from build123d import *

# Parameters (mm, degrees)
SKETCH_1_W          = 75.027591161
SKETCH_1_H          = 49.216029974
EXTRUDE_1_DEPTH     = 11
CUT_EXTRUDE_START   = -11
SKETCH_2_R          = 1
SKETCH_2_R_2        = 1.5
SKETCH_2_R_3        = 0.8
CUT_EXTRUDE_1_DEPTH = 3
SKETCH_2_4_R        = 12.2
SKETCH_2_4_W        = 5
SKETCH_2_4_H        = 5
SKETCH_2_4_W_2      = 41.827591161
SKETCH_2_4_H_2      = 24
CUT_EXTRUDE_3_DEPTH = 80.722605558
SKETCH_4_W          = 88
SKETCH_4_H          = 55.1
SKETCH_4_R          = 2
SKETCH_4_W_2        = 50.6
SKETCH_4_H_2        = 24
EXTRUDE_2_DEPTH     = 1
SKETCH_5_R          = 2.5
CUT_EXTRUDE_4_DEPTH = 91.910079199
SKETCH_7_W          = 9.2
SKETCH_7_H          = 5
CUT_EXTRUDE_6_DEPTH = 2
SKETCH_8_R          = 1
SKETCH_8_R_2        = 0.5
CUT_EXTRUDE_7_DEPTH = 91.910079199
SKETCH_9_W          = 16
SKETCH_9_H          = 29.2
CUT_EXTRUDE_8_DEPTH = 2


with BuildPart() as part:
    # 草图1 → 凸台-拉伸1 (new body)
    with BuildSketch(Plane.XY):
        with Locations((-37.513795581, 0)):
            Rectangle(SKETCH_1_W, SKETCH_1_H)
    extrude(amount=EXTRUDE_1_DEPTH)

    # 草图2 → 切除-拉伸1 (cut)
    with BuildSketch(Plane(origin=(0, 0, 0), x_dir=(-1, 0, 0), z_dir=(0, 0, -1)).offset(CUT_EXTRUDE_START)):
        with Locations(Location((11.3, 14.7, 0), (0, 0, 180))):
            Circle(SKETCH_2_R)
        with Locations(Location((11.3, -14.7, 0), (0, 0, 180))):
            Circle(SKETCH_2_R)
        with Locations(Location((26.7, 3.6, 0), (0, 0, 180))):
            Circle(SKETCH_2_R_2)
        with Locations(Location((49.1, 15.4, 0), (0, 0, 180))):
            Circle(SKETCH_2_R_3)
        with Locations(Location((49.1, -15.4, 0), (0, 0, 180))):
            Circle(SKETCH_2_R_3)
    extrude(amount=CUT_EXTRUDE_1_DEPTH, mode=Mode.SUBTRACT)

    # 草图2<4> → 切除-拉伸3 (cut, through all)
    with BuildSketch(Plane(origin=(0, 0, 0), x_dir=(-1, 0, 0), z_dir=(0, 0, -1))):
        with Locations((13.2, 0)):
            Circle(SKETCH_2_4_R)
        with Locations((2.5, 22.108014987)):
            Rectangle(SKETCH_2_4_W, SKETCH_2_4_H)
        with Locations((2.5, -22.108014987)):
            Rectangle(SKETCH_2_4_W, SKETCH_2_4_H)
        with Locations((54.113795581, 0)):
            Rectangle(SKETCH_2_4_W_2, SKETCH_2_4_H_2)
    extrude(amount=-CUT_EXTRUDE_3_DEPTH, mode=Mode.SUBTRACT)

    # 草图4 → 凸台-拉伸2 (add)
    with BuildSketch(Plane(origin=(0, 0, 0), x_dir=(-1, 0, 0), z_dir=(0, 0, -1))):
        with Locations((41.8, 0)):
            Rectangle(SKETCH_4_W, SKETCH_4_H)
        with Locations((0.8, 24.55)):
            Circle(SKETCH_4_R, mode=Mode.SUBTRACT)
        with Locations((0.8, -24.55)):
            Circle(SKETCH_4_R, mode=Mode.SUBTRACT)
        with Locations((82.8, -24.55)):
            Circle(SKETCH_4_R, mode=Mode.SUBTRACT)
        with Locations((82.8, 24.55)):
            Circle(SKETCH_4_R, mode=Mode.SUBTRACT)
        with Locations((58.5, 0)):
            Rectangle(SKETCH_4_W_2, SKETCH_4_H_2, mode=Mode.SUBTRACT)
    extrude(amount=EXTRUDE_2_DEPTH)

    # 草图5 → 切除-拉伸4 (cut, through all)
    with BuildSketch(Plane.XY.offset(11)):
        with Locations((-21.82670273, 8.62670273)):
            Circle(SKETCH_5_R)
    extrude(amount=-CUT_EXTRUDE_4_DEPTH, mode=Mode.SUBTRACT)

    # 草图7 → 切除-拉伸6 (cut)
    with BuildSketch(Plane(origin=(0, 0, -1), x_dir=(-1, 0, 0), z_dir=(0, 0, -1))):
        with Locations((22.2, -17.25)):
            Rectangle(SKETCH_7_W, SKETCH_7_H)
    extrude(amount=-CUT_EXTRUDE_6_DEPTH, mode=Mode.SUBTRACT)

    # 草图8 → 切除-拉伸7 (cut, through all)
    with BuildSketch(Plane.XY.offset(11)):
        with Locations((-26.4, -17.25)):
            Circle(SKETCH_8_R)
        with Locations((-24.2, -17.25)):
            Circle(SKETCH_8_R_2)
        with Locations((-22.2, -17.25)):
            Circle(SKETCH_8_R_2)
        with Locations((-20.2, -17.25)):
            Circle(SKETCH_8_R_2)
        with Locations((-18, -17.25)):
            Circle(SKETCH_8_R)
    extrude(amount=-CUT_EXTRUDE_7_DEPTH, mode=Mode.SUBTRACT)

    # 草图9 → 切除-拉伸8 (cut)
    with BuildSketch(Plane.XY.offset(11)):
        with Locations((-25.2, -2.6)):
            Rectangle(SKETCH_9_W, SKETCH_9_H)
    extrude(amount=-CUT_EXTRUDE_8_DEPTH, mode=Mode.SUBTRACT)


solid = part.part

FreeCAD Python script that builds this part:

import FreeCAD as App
import Part
import Sketcher

V = App.Vector


def add_polygon(sketch, points):
    """Adds a closed chain of lines whose ends are joined by coincident constraints."""
    first, n = sketch.GeometryCount, len(points)
    for a, b in zip(points, points[1:] + points[:1]):
        sketch.addGeometry(Part.LineSegment(App.Vector(*a, 0), App.Vector(*b, 0)), False)
    for i in range(n):
        sketch.addConstraint(Sketcher.Constraint("Coincident", first + i, 2, first + (i + 1) % n, 1))

doc = App.newDocument("Part")
body = doc.addObject("PartDesign::Body", "Body")

# Sketch on XY plane
sketch1 = body.newObject("Sketcher::SketchObject", "Sketch")
sketch1.AttachmentSupport = (doc.getObject("XY_Plane"), [""])
sketch1.MapMode = "FlatFace"
add_polygon(sketch1, [(-75, 25), (-75, -25), (0, -25), (0, 25)])  # lines 0-3
sketch1.addConstraint(Sketcher.Constraint("Vertical", 0))
sketch1.addConstraint(Sketcher.Constraint("Horizontal", 1))
sketch1.addConstraint(Sketcher.Constraint("Vertical", 2))
sketch1.addConstraint(Sketcher.Constraint("Horizontal", 3))
sketch1.addConstraint(Sketcher.Constraint("Symmetric", 1, 2, 2, 2, -1, 1))
sketch1.addConstraint(Sketcher.Constraint("DistanceX", 1, 1, 1, 2, 75.027591))
sketch1.addConstraint(Sketcher.Constraint("DistanceY", 0, 2, 0, 1, 49.21603))
pad1 = body.newObject("PartDesign::Pad", "Pad")
pad1.Profile = sketch1
pad1.Length = 11

# Sketch on XY plane
sketch2 = body.newObject("Sketcher::SketchObject", "Sketch001")
sketch2.AttachmentSupport = (doc.getObject("XY_Plane"), [""])
sketch2.MapMode = "FlatFace"
sketch2.AttachmentOffset = App.Placement(V(0, 0, 11), App.Rotation())
sketch2.addGeometry(Part.Circle(V(-11.3, 14.7, 0), V(0, 0, 1), 1), False)
sketch2.addGeometry(Part.Circle(V(-11.3, -14.7, 0), V(0, 0, 1), 1), False)
sketch2.addGeometry(Part.Circle(V(-26.7, 3.6, 0), V(0, 0, 1), 1.5), False)
sketch2.addGeometry(Part.Circle(V(-49.1, 15.4, 0), V(0, 0, 1), 0.8), False)
sketch2.addGeometry(Part.Circle(V(-49.1, -15.4, 0), V(0, 0, 1), 0.8), False)
sketch2.addConstraint(Sketcher.Constraint("Equal", 0, 1))
sketch2.addConstraint(Sketcher.Constraint("Equal", 3, 4))
sketch2.addConstraint(Sketcher.Constraint("Symmetric", 0, 3, 1, 3, -1))
sketch2.addConstraint(Sketcher.Constraint("Symmetric", 3, 3, 4, 3, -1))
sketch2.addConstraint(Sketcher.Constraint("Diameter", 0, 2.0))
sketch2.addConstraint(Sketcher.Constraint("Diameter", 2, 3.0))
sketch2.addConstraint(Sketcher.Constraint("Diameter", 3, 1.6))
sketch2.addConstraint(Sketcher.Constraint("DistanceY", 4, 3, 2, 3, 19.0))
sketch2.addConstraint(Sketcher.Constraint("DistanceX", 0, 3, -1, 1, 11.3))
sketch2.addConstraint(Sketcher.Constraint("DistanceY", -1, 1, 0, 3, 14.7))
sketch2.addConstraint(Sketcher.Constraint("DistanceX", 2, 3, -1, 1, 26.7))
sketch2.addConstraint(Sketcher.Constraint("DistanceY", -1, 1, 2, 3, 3.6))
sketch2.addConstraint(Sketcher.Constraint("DistanceX", 3, 3, -1, 1, 49.1))
pocket1 = body.newObject("PartDesign::Pocket", "Pocket")
pocket1.Profile = sketch2
pocket1.Length = 3

# Sketch on XY plane
sketch3 = body.newObject("Sketcher::SketchObject", "Sketch002")
sketch3.AttachmentSupport = (doc.getObject("XY_Plane"), [""])
sketch3.MapMode = "FlatFace"
sketch3.addGeometry(Part.Circle(V(-13, 0, 0), V(0, 0, 1), 12), False)  # 0
add_polygon(sketch3, [(0, 25), (0, 20), (-5, 20), (-5, 25)])  # lines 1-4
add_polygon(sketch3, [(0, -20), (0, -25), (-5, -25), (-5, -20)])  # lines 5-8
add_polygon(sketch3, [(-33, 12), (-33, -12), (-75, -12), (-75, 12)])  # lines 9-12
sketch3.addConstraint(Sketcher.Constraint("Vertical", 1))
sketch3.addConstraint(Sketcher.Constraint("Horizontal", 2))
sketch3.addConstraint(Sketcher.Constraint("Vertical", 3))
sketch3.addConstraint(Sketcher.Constraint("Horizontal", 4))
sketch3.addConstraint(Sketcher.Constraint("Vertical", 5))
sketch3.addConstraint(Sketcher.Constraint("Horizontal", 6))
sketch3.addConstraint(Sketcher.Constraint("Vertical", 7))
sketch3.addConstraint(Sketcher.Constraint("Horizontal", 8))
sketch3.addConstraint(Sketcher.Constraint("Vertical", 9))
sketch3.addConstraint(Sketcher.Constraint("Horizontal", 10))
sketch3.addConstraint(Sketcher.Constraint("Vertical", 11))
sketch3.addConstraint(Sketcher.Constraint("Horizontal", 12))
sketch3.addConstraint(Sketcher.Constraint("Symmetric", 4, 2, 5, 2, -1, 1))
sketch3.addConstraint(Sketcher.Constraint("Symmetric", 2, 2, 7, 2, -1))
sketch3.addConstraint(Sketcher.Constraint("PointOnObject", 0, 3, -1))
sketch3.addConstraint(Sketcher.Constraint("PointOnObject", 1, 2, -2))
sketch3.addConstraint(Sketcher.Constraint("Equal", 8, 1))
sketch3.addConstraint(Sketcher.Constraint("Diameter", 0, 24.4))
sketch3.addConstraint(Sketcher.Constraint("DistanceX", 2, 2, 2, 1, 5.0))
sketch3.addConstraint(Sketcher.Constraint("DistanceY", 9, 2, 9, 1, 24.0))
sketch3.addConstraint(Sketcher.Constraint("DistanceY", 9, 2, -1, 1, 12.0))
sketch3.addConstraint(Sketcher.Constraint("DistanceX", 9, 2, 0, 3, 20.0))
sketch3.addConstraint(Sketcher.Constraint("DistanceX", 0, 3, -1, 1, 13.2))
sketch3.addConstraint(Sketcher.Constraint("DistanceX", 10, 2, 10, 1, 41.827591))
sketch3.addConstraint(Sketcher.Constraint("DistanceY", 5, 2, 1, 2, 44.21603))
pocket2 = body.newObject("PartDesign::Pocket", "Pocket001")
pocket2.Profile = sketch3
pocket2.Type = "ThroughAll"
pocket2.Reversed = True

# Sketch on XY plane
sketch4 = body.newObject("Sketcher::SketchObject", "Sketch003")
sketch4.AttachmentSupport = (doc.getObject("XY_Plane"), [""])
sketch4.MapMode = "FlatFace"
add_polygon(sketch4, [(2.2, 27.6), (2.2, -27.6), (-85.8, -27.6), (-85.8, 27.6)])  # lines 0-3
sketch4.addGeometry(Part.Circle(V(-0.8, -24.6, 0), V(0, 0, 1), 2), False)  # 4
sketch4.addGeometry(Part.Circle(V(-82.8, -24.6, 0), V(0, 0, 1), 2), False)  # 5
sketch4.addGeometry(Part.Circle(V(-0.8, 24.6, 0), V(0, 0, 1), 2), False)  # 6
add_polygon(sketch4, [(-83.8, -12), (-33.2, -12), (-33.2, 12), (-83.8, 12)])  # lines 7-10
sketch4.addGeometry(Part.Circle(V(-82.8, 24.6, 0), V(0, 0, 1), 2), False)  # 11
sketch4.addConstraint(Sketcher.Constraint("Vertical", 0))
sketch4.addConstraint(Sketcher.Constraint("Horizontal", 1))
sketch4.addConstraint(Sketcher.Constraint("Vertical", 2))
sketch4.addConstraint(Sketcher.Constraint("Horizontal", 3))
sketch4.addConstraint(Sketcher.Constraint("Horizontal", 7))
sketch4.addConstraint(Sketcher.Constraint("Vertical", 8))
sketch4.addConstraint(Sketcher.Constraint("Horizontal", 9))
sketch4.addConstraint(Sketcher.Constraint("Vertical", 10))
sketch4.addConstraint(Sketcher.Constraint("Equal", 4, 5))
sketch4.addConstraint(Sketcher.Constraint("Equal", 5, 6))
sketch4.addConstraint(Sketcher.Constraint("Equal", 6, 11))
sketch4.addConstraint(Sketcher.Constraint("Symmetric", 4, 3, 6, 3, -1))
sketch4.addConstraint(Sketcher.Constraint("Symmetric", 5, 3, 11, 3, -1))
sketch4.addConstraint(Sketcher.Constraint("Horizontal", 4, 3, 5, 3))
sketch4.addConstraint(Sketcher.Constraint("Diameter", 4, 4.0))
sketch4.addConstraint(Sketcher.Constraint("DistanceX", 1, 2, 1, 1, 88.0))
sketch4.addConstraint(Sketcher.Constraint("DistanceY", 8, 1, 8, 2, 24.0))
sketch4.addConstraint(Sketcher.Constraint("DistanceX", 7, 1, 7, 2, 50.6))
sketch4.addConstraint(Sketcher.Constraint("DistanceY", 0, 2, 0, 1, 55.1))
sketch4.addConstraint(Sketcher.Constraint("DistanceY", 7, 2, -1, 1, 12.0))
sketch4.addConstraint(Sketcher.Constraint("DistanceX", 5, 3, 4, 3, 82.0))
sketch4.addConstraint(Sketcher.Constraint("DistanceX", 4, 3, 0, 2, 3.0))
sketch4.addConstraint(Sketcher.Constraint("DistanceY", 0, 2, 4, 3, 3.0))
sketch4.addConstraint(Sketcher.Constraint("DistanceY", 11, 3, 2, 2, 3.0))
sketch4.addConstraint(Sketcher.Constraint("DistanceX", 9, 2, 11, 3, 1.0))
sketch4.addConstraint(Sketcher.Constraint("DistanceX", 4, 3, -1, 1, 0.8))
pad2 = body.newObject("PartDesign::Pad", "Pad001")
pad2.Profile = sketch4
pad2.Length = 1
pad2.Reversed = True

# Sketch on XY plane
sketch5 = body.newObject("Sketcher::SketchObject", "Sketch004")
sketch5.AttachmentSupport = (doc.getObject("XY_Plane"), [""])
sketch5.MapMode = "FlatFace"
sketch5.AttachmentOffset = App.Placement(V(0, 0, 11), App.Rotation())
sketch5.addGeometry(Part.Circle(V(-21.8, 8.6, 0), V(0, 0, 1), 2.5), False)
sketch5.addConstraint(Sketcher.Constraint("Diameter", 0, 5.0))
sketch5.addConstraint(Sketcher.Constraint("DistanceX", 0, 3, -1, 1, 21.826703))
sketch5.addConstraint(Sketcher.Constraint("DistanceY", -1, 1, 0, 3, 8.626703))
pocket3 = body.newObject("PartDesign::Pocket", "Pocket002")
pocket3.Profile = sketch5
pocket3.Type = "ThroughAll"

# Sketch on XY plane
sketch6 = body.newObject("Sketcher::SketchObject", "Sketch005")
sketch6.AttachmentSupport = (doc.getObject("XY_Plane"), [""])
sketch6.MapMode = "FlatFace"
sketch6.AttachmentOffset = App.Placement(V(0, 0, -1), App.Rotation())
add_polygon(sketch6, [(-18, -15), (-18, -20), (-27, -20), (-27, -15)])  # lines 0-3
sketch6.addConstraint(Sketcher.Constraint("Vertical", 0))
sketch6.addConstraint(Sketcher.Constraint("Horizontal", 1))
sketch6.addConstraint(Sketcher.Constraint("Vertical", 2))
sketch6.addConstraint(Sketcher.Constraint("Horizontal", 3))
sketch6.addConstraint(Sketcher.Constraint("DistanceY", 0, 2, 0, 1, 5.0))
sketch6.addConstraint(Sketcher.Constraint("DistanceX", 1, 2, 1, 1, 9.2))
sketch6.addConstraint(Sketcher.Constraint("DistanceX", 0, 2, -1, 1, 17.6))
sketch6.addConstraint(Sketcher.Constraint("DistanceY", 0, 2, -1, 1, 19.75))
pocket4 = body.newObject("PartDesign::Pocket", "Pocket003")
pocket4.Profile = sketch6
pocket4.Length = 2
pocket4.Reversed = True

# Sketch on XY plane
sketch7 = body.newObject("Sketcher::SketchObject", "Sketch006")
sketch7.AttachmentSupport = (doc.getObject("XY_Plane"), [""])
sketch7.MapMode = "FlatFace"
sketch7.AttachmentOffset = App.Placement(V(0, 0, 11), App.Rotation())
sketch7.addGeometry(Part.Circle(V(-26.4, -17.2, 0), V(0, 0, 1), 1), False)
sketch7.addGeometry(Part.Circle(V(-24.2, -17.2, 0), V(0, 0, 1), 0.5), False)
sketch7.addGeometry(Part.Circle(V(-22.2, -17.2, 0), V(0, 0, 1), 0.5), False)
sketch7.addGeometry(Part.Circle(V(-20.2, -17.2, 0), V(0, 0, 1), 0.5), False)
sketch7.addGeometry(Part.Circle(V(-18, -17.2, 0), V(0, 0, 1), 1), False)
sketch7.addConstraint(Sketcher.Constraint("Equal", 1, 2))
sketch7.addConstraint(Sketcher.Constraint("Equal", 2, 3))
sketch7.addConstraint(Sketcher.Constraint("Equal", 0, 4))
sketch7.addConstraint(Sketcher.Constraint("Horizontal", 0, 3, 1, 3))
sketch7.addConstraint(Sketcher.Constraint("Horizontal", 1, 3, 2, 3))
sketch7.addConstraint(Sketcher.Constraint("Horizontal", 2, 3, 3, 3))
sketch7.addConstraint(Sketcher.Constraint("Horizontal", 3, 3, 4, 3))
sketch7.addConstraint(Sketcher.Constraint("Diameter", 0, 2.0))
sketch7.addConstraint(Sketcher.Constraint("Diameter", 1, 1.0))
sketch7.addConstraint(Sketcher.Constraint("DistanceX", 4, 3, -1, 1, 18.0))
sketch7.addConstraint(Sketcher.Constraint("DistanceX", 1, 3, 2, 3, 2.0))
sketch7.addConstraint(Sketcher.Constraint("DistanceX", 2, 3, 3, 3, 2.0))
sketch7.addConstraint(Sketcher.Constraint("DistanceX", 0, 3, -1, 1, 26.4))
sketch7.addConstraint(Sketcher.Constraint("DistanceX", 1, 3, -1, 1, 24.2))
sketch7.addConstraint(Sketcher.Constraint("DistanceY", 0, 3, -1, 1, 17.25))
pocket5 = body.newObject("PartDesign::Pocket", "Pocket004")
pocket5.Profile = sketch7
pocket5.Type = "ThroughAll"

# Sketch on XY plane
sketch8 = body.newObject("Sketcher::SketchObject", "Sketch007")
sketch8.AttachmentSupport = (doc.getObject("XY_Plane"), [""])
sketch8.MapMode = "FlatFace"
sketch8.AttachmentOffset = App.Placement(V(0, 0, 11), App.Rotation())
add_polygon(sketch8, [(-33, 12), (-33, -17), (-17, -17), (-17, 12)])  # lines 0-3
sketch8.addConstraint(Sketcher.Constraint("Vertical", 0))
sketch8.addConstraint(Sketcher.Constraint("Horizontal", 1))
sketch8.addConstraint(Sketcher.Constraint("Vertical", 2))
sketch8.addConstraint(Sketcher.Constraint("Horizontal", 3))
sketch8.addConstraint(Sketcher.Constraint("DistanceX", 1, 1, 1, 2, 16.0))
sketch8.addConstraint(Sketcher.Constraint("DistanceY", 0, 2, 0, 1, 29.2))
sketch8.addConstraint(Sketcher.Constraint("DistanceY", -1, 1, 2, 2, 12.0))
sketch8.addConstraint(Sketcher.Constraint("DistanceX", 0, 2, -1, 1, 33.2))
pocket6 = body.newObject("PartDesign::Pocket", "Pocket005")
pocket6.Profile = sketch8
pocket6.Length = 2

doc.recompute()
